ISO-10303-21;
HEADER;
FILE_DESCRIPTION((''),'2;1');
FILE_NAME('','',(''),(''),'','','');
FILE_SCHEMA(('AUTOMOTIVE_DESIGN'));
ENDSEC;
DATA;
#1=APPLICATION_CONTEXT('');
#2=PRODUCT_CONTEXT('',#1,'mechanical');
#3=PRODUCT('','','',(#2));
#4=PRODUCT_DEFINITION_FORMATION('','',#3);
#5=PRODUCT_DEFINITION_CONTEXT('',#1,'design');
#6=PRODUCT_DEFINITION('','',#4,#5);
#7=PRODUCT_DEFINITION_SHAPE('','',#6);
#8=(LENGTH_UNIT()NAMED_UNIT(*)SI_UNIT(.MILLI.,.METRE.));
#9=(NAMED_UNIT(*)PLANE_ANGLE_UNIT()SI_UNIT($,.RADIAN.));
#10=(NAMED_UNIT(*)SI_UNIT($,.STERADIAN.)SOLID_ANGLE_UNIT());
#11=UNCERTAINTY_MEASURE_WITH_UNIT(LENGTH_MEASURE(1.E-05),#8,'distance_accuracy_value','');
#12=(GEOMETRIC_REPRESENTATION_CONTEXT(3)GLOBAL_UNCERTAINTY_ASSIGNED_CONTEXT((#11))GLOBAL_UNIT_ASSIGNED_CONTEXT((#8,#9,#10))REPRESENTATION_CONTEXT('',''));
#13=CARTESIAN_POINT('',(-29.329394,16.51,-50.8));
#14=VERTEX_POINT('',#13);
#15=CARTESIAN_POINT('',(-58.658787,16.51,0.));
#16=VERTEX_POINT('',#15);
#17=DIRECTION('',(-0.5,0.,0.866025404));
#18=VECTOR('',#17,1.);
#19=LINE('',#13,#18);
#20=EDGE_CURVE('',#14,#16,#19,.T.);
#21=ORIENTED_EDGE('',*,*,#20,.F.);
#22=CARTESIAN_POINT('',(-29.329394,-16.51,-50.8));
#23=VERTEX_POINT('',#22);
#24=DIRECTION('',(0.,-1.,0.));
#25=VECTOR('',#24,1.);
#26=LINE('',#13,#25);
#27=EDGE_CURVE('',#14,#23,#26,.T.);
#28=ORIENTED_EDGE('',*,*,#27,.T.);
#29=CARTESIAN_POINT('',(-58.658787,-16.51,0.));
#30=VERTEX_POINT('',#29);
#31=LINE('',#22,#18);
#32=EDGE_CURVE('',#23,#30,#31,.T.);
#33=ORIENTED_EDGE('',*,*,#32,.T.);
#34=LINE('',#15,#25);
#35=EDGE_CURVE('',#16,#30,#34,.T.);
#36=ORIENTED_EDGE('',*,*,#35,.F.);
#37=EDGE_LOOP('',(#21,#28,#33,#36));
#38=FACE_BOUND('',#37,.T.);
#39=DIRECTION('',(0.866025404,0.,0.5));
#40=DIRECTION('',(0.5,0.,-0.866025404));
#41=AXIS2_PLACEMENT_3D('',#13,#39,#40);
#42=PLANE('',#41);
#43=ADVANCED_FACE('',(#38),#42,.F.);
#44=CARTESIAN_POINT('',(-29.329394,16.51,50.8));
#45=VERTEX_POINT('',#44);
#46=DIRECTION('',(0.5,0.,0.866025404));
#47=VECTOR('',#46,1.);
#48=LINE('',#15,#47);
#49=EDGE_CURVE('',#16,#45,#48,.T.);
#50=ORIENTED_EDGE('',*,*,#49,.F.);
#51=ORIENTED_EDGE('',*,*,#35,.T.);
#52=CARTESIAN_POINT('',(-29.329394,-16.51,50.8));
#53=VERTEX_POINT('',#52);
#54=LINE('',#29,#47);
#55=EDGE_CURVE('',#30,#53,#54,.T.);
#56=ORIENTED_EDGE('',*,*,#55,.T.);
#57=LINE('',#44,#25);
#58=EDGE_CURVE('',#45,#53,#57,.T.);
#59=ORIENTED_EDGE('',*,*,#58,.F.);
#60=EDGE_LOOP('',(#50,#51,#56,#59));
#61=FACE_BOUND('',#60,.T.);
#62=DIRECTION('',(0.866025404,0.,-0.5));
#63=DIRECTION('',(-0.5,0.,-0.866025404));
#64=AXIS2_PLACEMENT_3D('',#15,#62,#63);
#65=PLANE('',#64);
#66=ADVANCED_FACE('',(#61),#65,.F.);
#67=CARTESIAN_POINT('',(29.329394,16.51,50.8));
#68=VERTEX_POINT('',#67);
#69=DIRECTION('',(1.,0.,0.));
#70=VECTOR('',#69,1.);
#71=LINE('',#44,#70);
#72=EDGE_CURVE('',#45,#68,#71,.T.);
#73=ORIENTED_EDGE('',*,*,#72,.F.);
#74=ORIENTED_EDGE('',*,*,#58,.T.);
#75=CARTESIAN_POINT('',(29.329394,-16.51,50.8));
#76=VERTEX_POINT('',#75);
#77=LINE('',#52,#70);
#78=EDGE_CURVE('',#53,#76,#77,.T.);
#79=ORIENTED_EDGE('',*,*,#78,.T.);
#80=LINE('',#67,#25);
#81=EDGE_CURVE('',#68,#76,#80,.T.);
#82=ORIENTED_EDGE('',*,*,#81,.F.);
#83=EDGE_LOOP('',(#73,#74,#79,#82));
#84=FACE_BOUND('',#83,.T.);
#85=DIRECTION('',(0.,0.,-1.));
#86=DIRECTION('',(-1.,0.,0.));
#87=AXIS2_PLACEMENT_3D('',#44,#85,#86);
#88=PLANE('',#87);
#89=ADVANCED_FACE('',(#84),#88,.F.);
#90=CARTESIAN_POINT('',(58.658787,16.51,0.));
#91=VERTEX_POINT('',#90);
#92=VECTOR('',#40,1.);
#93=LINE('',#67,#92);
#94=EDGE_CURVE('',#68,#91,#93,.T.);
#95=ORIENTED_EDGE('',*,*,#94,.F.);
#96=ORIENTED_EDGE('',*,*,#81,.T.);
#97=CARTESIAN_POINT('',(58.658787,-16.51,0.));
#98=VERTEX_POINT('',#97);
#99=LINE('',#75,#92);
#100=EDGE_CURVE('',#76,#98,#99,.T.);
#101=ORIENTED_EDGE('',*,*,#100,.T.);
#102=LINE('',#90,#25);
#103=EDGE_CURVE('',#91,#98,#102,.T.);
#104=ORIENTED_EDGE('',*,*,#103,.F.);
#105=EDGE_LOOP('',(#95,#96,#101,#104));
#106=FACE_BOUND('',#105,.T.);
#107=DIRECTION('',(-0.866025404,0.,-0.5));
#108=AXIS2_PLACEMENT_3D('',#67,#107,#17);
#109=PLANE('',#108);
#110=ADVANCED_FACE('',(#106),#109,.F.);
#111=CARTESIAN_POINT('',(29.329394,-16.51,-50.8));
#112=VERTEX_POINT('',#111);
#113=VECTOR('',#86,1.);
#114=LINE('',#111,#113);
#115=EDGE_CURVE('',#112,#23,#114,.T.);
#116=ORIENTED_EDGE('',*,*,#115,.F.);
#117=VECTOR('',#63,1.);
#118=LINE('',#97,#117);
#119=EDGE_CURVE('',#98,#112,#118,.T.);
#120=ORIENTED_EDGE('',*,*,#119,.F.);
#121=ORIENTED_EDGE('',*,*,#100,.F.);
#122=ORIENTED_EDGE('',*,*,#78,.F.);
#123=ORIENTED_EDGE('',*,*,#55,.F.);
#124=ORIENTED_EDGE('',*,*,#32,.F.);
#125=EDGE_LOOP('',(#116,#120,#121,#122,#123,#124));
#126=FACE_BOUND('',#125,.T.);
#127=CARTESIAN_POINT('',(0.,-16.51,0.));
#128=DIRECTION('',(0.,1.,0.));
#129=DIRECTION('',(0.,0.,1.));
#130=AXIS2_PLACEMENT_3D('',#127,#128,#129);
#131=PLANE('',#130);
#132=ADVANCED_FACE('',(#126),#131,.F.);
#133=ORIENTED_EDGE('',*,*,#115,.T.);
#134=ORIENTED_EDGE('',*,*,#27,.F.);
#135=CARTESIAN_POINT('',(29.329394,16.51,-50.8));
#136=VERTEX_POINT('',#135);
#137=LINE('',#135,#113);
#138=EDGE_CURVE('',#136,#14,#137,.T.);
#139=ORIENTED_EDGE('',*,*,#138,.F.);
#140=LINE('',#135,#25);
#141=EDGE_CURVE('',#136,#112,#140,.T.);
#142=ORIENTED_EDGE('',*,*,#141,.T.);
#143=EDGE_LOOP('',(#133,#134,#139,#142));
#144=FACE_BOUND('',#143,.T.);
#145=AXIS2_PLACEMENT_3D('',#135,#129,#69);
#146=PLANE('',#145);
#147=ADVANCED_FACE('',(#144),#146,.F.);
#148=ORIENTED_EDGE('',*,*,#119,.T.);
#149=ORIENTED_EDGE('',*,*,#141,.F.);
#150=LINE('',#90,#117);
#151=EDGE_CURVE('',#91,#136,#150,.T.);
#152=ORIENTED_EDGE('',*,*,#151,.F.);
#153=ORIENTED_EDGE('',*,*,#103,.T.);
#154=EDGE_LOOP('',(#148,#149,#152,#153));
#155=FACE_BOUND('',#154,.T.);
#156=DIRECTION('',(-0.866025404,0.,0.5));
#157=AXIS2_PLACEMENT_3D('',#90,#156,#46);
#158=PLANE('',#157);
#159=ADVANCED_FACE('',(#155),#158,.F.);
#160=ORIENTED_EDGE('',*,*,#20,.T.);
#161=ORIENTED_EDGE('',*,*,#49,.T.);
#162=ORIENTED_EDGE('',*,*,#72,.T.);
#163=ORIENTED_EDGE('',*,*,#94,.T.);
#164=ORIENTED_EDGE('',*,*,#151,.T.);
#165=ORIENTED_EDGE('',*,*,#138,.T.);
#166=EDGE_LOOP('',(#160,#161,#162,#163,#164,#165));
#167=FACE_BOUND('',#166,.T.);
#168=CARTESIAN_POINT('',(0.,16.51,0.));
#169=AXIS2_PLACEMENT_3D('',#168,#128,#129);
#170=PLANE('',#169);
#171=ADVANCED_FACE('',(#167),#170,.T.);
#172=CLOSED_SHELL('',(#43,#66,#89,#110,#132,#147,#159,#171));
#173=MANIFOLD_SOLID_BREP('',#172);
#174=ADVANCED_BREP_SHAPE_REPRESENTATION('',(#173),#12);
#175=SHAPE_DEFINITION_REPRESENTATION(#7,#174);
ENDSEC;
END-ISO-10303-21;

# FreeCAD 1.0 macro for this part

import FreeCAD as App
import Part
import Sketcher
Q = App.Units.Quantity

doc = App.newDocument("Part")
body = doc.addObject("PartDesign::Body", "Body")

# Sketch on XZ plane
sketch1 = doc.addObject("Sketcher::SketchObject", "Sketch")
body.addObject(sketch1)
sketch1.AttachmentSupport = (doc.XZ_Plane, [""])
sketch1.MapMode = "FlatFace"
sketch1.addGeometry([
    Part.LineSegment(App.Vector(-59, 0, 0), App.Vector(-29, 51, 0)),  # 0
    Part.LineSegment(App.Vector(-29, 51, 0), App.Vector(29, 51, 0)),  # 1
    Part.LineSegment(App.Vector(29, 51, 0), App.Vector(59, 0, 0)),  # 2
    Part.LineSegment(App.Vector(59, 0, 0), App.Vector(29, -51, 0)),  # 3
    Part.LineSegment(App.Vector(29, -51, 0), App.Vector(-29, -51, 0)),  # 4
    Part.LineSegment(App.Vector(-29, -51, 0), App.Vector(-59, 0, 0)),  # 5
], False)
sketch1.addConstraint([
    Sketcher.Constraint("Coincident", 0, 2, 1, 1),
    Sketcher.Constraint("Coincident", 1, 2, 2, 1),
    Sketcher.Constraint("Coincident", 2, 2, 3, 1),
    Sketcher.Constraint("Coincident", 3, 2, 4, 1),
    Sketcher.Constraint("Coincident", 4, 2, 5, 1),
    Sketcher.Constraint("Coincident", 5, 2, 0, 1),
    Sketcher.Constraint("Horizontal", 1),
    Sketcher.Constraint("Horizontal", 4),
    Sketcher.Constraint("Symmetric", 0, 2, 3, 2, -1, 1),
    Sketcher.Constraint("Symmetric", 2, 2, 5, 2, -1, 1),
    Sketcher.Constraint("PointOnObject", 2, 2, -1),
    Sketcher.Constraint("Parallel", 2, 5),
    Sketcher.Constraint("Vertical", 1, 2, 3, 2),
    Sketcher.Constraint("DistanceY", -1, 1, 0, 2, Q("2 in")),
    Sketcher.Constraint("Angle", 0, Q("60 deg")),
    Sketcher.Constraint("DistanceX", 1, 1, 1, 2, 58.658787),
])
pad1 = doc.addObject("PartDesign::Pad", "Pad")
body.addObject(pad1)
pad1.Profile = sketch1
pad1.Length = Q("1.3 in")
pad1.Midplane = True

doc.recompute()
